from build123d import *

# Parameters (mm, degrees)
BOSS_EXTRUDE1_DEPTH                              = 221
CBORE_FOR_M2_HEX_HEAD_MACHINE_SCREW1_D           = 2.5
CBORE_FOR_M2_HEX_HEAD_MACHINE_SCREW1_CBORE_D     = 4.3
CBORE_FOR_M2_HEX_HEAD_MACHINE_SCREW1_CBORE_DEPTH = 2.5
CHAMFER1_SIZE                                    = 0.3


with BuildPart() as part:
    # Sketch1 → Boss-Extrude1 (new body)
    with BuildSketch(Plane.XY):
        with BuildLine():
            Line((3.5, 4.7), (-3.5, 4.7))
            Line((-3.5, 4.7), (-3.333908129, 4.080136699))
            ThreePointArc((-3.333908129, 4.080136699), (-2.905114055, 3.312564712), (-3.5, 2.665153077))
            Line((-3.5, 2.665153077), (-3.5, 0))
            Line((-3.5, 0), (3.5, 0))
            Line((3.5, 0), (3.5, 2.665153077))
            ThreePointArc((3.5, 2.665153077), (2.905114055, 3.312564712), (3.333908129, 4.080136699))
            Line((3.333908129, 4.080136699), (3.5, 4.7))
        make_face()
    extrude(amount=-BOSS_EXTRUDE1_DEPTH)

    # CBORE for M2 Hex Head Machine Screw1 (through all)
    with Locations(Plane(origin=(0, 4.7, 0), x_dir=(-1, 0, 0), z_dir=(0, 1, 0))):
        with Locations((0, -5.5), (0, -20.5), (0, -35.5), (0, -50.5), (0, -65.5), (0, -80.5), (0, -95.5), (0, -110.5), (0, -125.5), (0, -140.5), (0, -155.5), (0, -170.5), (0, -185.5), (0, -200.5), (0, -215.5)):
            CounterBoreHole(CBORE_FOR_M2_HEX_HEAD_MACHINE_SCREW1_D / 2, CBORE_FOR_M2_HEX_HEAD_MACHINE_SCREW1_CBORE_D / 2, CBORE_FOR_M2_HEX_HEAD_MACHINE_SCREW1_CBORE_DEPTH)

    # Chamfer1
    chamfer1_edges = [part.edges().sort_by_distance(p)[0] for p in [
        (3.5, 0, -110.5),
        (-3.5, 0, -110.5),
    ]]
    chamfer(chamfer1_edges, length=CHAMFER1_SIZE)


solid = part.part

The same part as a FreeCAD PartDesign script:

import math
import FreeCAD as App
import Part
import Sketcher
from FreeCAD import Vector
Q = App.Units.Quantity


def edges_at(feature, points):
    """Names of the edges that pass closest to the given points."""
    edges = feature.Shape.Edges
    near = lambda p: min(range(len(edges)), key=lambda i: edges[i].distToShape(Part.Vertex(*p))[0])
    return sorted({f"Edge{near(p) + 1}" for p in points})

doc = App.newDocument("Part")
params = doc.addObject("Spreadsheet::Sheet", "Params")
for row, (alias, value) in enumerate([
    ("sketch1_width", "7 mm"),
    ("sketch1_radius", "0.75 mm"),
    ("pad1_length", "221 mm"),
    ("sketch2_diameter", "2.5 mm"),
    ("hole_diameter", "2.5 mm"),
    ("hole_cbore_diameter", "4.3 mm"),
    ("hole_cbore_depth", "2.5 mm"),
    ("chamfer_size", "0.3 mm"),
], start=1):
    params.set(f"A{row}", alias)
    params.set(f"B{row}", "=" + value)
    params.setAlias(f"B{row}", alias)

body = doc.addObject("PartDesign::Body", "Body")

# Sketch on XY plane
sketch1 = body.newObject("Sketcher::SketchObject", "Sketch")
sketch1.AttachmentSupport = (doc.getObject("XY_Plane"), [""])
sketch1.MapMode = "FlatFace"
sketch1.addGeometry(Part.LineSegment(Vector(3.5, 4.7, 0), Vector(-3.5, 4.7, 0)), False)
sketch1.addGeometry(Part.LineSegment(Vector(-3.5, 4.7, 0), Vector(-3.3, 4.1, 0)), False)
sketch1.addGeometry(Part.ArcOfCircle(Part.Circle(Vector(-3.6, 3.4, 0), Vector(0, 0, 1), 0.8), math.radians(-78), math.radians(65)), False)
sketch1.addGeometry(Part.LineSegment(Vector(-3.5, 2.7, 0), Vector(-3.5, 0, 0)), False)
sketch1.addGeometry(Part.LineSegment(Vector(-3.5, 0, 0), Vector(3.5, 0, 0)), False)
sketch1.addGeometry(Part.LineSegment(Vector(3.5, 0, 0), Vector(3.5, 2.7, 0)), False)
sketch1.addGeometry(Part.ArcOfCircle(Part.Circle(Vector(3.6, 3.4, 0), Vector(0, 0, 1), 0.8), math.radians(115), math.radians(258)), False)
sketch1.addGeometry(Part.LineSegment(Vector(3.3, 4.1, 0), Vector(3.5, 4.7, 0)), False)
sketch1.addConstraint(Sketcher.Constraint("Coincident", 0, 2, 1, 1))
sketch1.addConstraint(Sketcher.Constraint("Coincident", 1, 2, 2, 2))
sketch1.addConstraint(Sketcher.Constraint("Coincident", 2, 1, 3, 1))
sketch1.addConstraint(Sketcher.Constraint("Coincident", 3, 2, 4, 1))
sketch1.addConstraint(Sketcher.Constraint("Coincident", 4, 2, 5, 1))
sketch1.addConstraint(Sketcher.Constraint("Coincident", 5, 2, 6, 2))
sketch1.addConstraint(Sketcher.Constraint("Coincident", 6, 1, 7, 1))
sketch1.addConstraint(Sketcher.Constraint("Coincident", 7, 2, 0, 1))
sketch1.addConstraint(Sketcher.Constraint("Horizontal", 0))
sketch1.addConstraint(Sketcher.Constraint("Vertical", 3))
sketch1.addConstraint(Sketcher.Constraint("Horizontal", 4))
sketch1.addConstraint(Sketcher.Constraint("Vertical", 5))
sketch1.addConstraint(Sketcher.Constraint("Equal", 2, 6))
sketch1.addConstraint(Sketcher.Constraint("Symmetric", 3, 2, 4, 2, -1, 1))
sketch1.addConstraint(Sketcher.Constraint("Symmetric", 2, 3, 6, 3, -2))
sketch1.addConstraint(Sketcher.Constraint("Horizontal", 1, 2, 6, 1))
sketch1.addConstraint(Sketcher.Constraint("Vertical", 0, 2, 2, 1))
sketch1.addConstraint(Sketcher.Constraint("Vertical", 5, 2, 7, 2))
sketch1.addConstraint(Sketcher.Constraint("DistanceX", 0, 2, 0, 1, Q("7 mm")))
sketch1.addConstraint(Sketcher.Constraint("Angle", 1, Q("-75 deg")))
sketch1.addConstraint(Sketcher.Constraint("Radius", 2, Q("0.75 mm")))
sketch1.addConstraint(Sketcher.Constraint("DistanceY", -1, 1, 2, 3, Q("3.4 mm")))
sketch1.addConstraint(Sketcher.Constraint("DistanceY", -1, 1, 0, 2, Q("4.7 mm")))
sketch1.addConstraint(Sketcher.Constraint("DistanceX", 2, 3, 6, 3, Q("7.3 mm")))
sketch1.setExpression("Constraints[18]", "Params.sketch1_width")
sketch1.setExpression("Constraints[20]", "Params.sketch1_radius")
pad1 = body.newObject("PartDesign::Pad", "Pad")
pad1.Profile = sketch1
pad1.setExpression("Length", "Params.pad1_length")
pad1.Reversed = True

# Sketch on XZ plane
sketch2 = body.newObject("Sketcher::SketchObject", "Sketch001")
sketch2.AttachmentSupport = (doc.getObject("XZ_Plane"), [""])
sketch2.MapMode = "FlatFace"
sketch2.AttachmentOffset = App.Placement(Vector(0, 0, -4.7), App.Rotation())
sketch2.addGeometry(Part.Circle(Vector(0, -5.5, 0), Vector(0, 0, 1), 1.2), False)
sketch2.addGeometry(Part.Circle(Vector(0, -20.5, 0), Vector(0, 0, 1), 1.2), False)
sketch2.addGeometry(Part.Circle(Vector(0, -35.5, 0), Vector(0, 0, 1), 1.2), False)
sketch2.addGeometry(Part.Circle(Vector(0, -50.5, 0), Vector(0, 0, 1), 1.2), False)
sketch2.addGeometry(Part.Circle(Vector(0, -65.5, 0), Vector(0, 0, 1), 1.2), False)
sketch2.addGeometry(Part.Circle(Vector(0, -80.5, 0), Vector(0, 0, 1), 1.2), False)
sketch2.addGeometry(Part.Circle(Vector(0, -95.5, 0), Vector(0, 0, 1), 1.2), False)
sketch2.addGeometry(Part.Circle(Vector(0, -110.5, 0), Vector(0, 0, 1), 1.2), False)
sketch2.addGeometry(Part.Circle(Vector(0, -125.5, 0), Vector(0, 0, 1), 1.2), False)
sketch2.addGeometry(Part.Circle(Vector(0, -140.5, 0), Vector(0, 0, 1), 1.2), False)
sketch2.addGeometry(Part.Circle(Vector(0, -155.5, 0), Vector(0, 0, 1), 1.2), False)
sketch2.addGeometry(Part.Circle(Vector(0, -170.5, 0), Vector(0, 0, 1), 1.2), False)
sketch2.addGeometry(Part.Circle(Vector(0, -185.5, 0), Vector(0, 0, 1), 1.2), False)
sketch2.addGeometry(Part.Circle(Vector(0, -200.5, 0), Vector(0, 0, 1), 1.2), False)
sketch2.addGeometry(Part.Circle(Vector(0, -215.5, 0), Vector(0, 0, 1), 1.2), False)
sketch2.addConstraint(Sketcher.Constraint("Equal", 0, 1))
sketch2.addConstraint(Sketcher.Constraint("Equal", 1, 2))
sketch2.addConstraint(Sketcher.Constraint("Equal", 2, 3))
sketch2.addConstraint(Sketcher.Constraint("Equal", 3, 4))
sketch2.addConstraint(Sketcher.Constraint("Equal", 4, 5))
sketch2.addConstraint(Sketcher.Constraint("Equal", 5, 6))
sketch2.addConstraint(Sketcher.Constraint("Equal", 6, 7))
sketch2.addConstraint(Sketcher.Constraint("Equal", 7, 8))
sketch2.addConstraint(Sketcher.Constraint("Equal", 8, 9))
sketch2.addConstraint(Sketcher.Constraint("Equal", 9, 10))
sketch2.addConstraint(Sketcher.Constraint("Equal", 10, 11))
sketch2.addConstraint(Sketcher.Constraint("Equal", 11, 12))
sketch2.addConstraint(Sketcher.Constraint("Equal", 12, 13))
sketch2.addConstraint(Sketcher.Constraint("Equal", 13, 14))
sketch2.addConstraint(Sketcher.Constraint("PointOnObject", 0, 3, -2))
sketch2.addConstraint(Sketcher.Constraint("PointOnObject", 1, 3, -2))
sketch2.addConstraint(Sketcher.Constraint("PointOnObject", 2, 3, -2))
sketch2.addConstraint(Sketcher.Constraint("PointOnObject", 3, 3, -2))
sketch2.addConstraint(Sketcher.Constraint("PointOnObject", 4, 3, -2))
sketch2.addConstraint(Sketcher.Constraint("PointOnObject", 5, 3, -2))
sketch2.addConstraint(Sketcher.Constraint("PointOnObject", 6, 3, -2))
sketch2.addConstraint(Sketcher.Constraint("PointOnObject", 7, 3, -2))
sketch2.addConstraint(Sketcher.Constraint("PointOnObject", 8, 3, -2))
sketch2.addConstraint(Sketcher.Constraint("PointOnObject", 9, 3, -2))
sketch2.addConstraint(Sketcher.Constraint("PointOnObject", 10, 3, -2))
sketch2.addConstraint(Sketcher.Constraint("PointOnObject", 11, 3, -2))
sketch2.addConstraint(Sketcher.Constraint("PointOnObject", 12, 3, -2))
sketch2.addConstraint(Sketcher.Constraint("PointOnObject", 13, 3, -2))
sketch2.addConstraint(Sketcher.Constraint("PointOnObject", 14, 3, -2))
sketch2.addConstraint(Sketcher.Constraint("Diameter", 0, Q("2.5 mm")))
sketch2.addConstraint(Sketcher.Constraint("DistanceY", 1, 3, 0, 3, Q("15 mm")))
sketch2.addConstraint(Sketcher.Constraint("DistanceY", 2, 3, 1, 3, Q("15 mm")))
sketch2.addConstraint(Sketcher.Constraint("DistanceY", 3, 3, 2, 3, Q("15 mm")))
sketch2.addConstraint(Sketcher.Constraint("DistanceY", 4, 3, 3, 3, Q("15 mm")))
sketch2.addConstraint(Sketcher.Constraint("DistanceY", 5, 3, 4, 3, Q("15 mm")))
sketch2.addConstraint(Sketcher.Constraint("DistanceY", 6, 3, 5, 3, Q("15 mm")))
sketch2.addConstraint(Sketcher.Constraint("DistanceY", 7, 3, 6, 3, Q("15 mm")))
sketch2.addConstraint(Sketcher.Constraint("DistanceY", 8, 3, 7, 3, Q("15 mm")))
sketch2.addConstraint(Sketcher.Constraint("DistanceY", 9, 3, 8, 3, Q("15 mm")))
sketch2.addConstraint(Sketcher.Constraint("DistanceY", 10, 3, 9, 3, Q("15 mm")))
sketch2.addConstraint(Sketcher.Constraint("DistanceY", 11, 3, 10, 3, Q("15 mm")))
sketch2.addConstraint(Sketcher.Constraint("DistanceY", 12, 3, 11, 3, Q("15 mm")))
sketch2.addConstraint(Sketcher.Constraint("DistanceY", 13, 3, 12, 3, Q("15 mm")))
sketch2.addConstraint(Sketcher.Constraint("DistanceY", 14, 3, 13, 3, Q("15 mm")))
sketch2.addConstraint(Sketcher.Constraint("DistanceY", 0, 3, -1, 1, Q("5.5 mm")))
sketch2.setExpression("Constraints[29]", "Params.sketch2_diameter")
doc.recompute()
hole = body.newObject("PartDesign::Hole", "Hole")
hole.Profile = sketch2
hole.ThreadType = "None"
hole.setExpression("Diameter", "Params.hole_diameter")
hole.DepthType = "ThroughAll"
hole.HoleCutType = "Counterbore"
hole.setExpression("HoleCutDiameter", "Params.hole_cbore_diameter")
hole.setExpression("HoleCutDepth", "Params.hole_cbore_depth")
hole.Reversed = True
doc.recompute()

chamfer = body.newObject("PartDesign::Chamfer", "Chamfer")
chamfer.Base = (hole, edges_at(hole, [(3.5, 0, -110.5), (-3.5, 0, -110.5)]))
chamfer.setExpression("Size", "Params.chamfer_size")

doc.recompute()
